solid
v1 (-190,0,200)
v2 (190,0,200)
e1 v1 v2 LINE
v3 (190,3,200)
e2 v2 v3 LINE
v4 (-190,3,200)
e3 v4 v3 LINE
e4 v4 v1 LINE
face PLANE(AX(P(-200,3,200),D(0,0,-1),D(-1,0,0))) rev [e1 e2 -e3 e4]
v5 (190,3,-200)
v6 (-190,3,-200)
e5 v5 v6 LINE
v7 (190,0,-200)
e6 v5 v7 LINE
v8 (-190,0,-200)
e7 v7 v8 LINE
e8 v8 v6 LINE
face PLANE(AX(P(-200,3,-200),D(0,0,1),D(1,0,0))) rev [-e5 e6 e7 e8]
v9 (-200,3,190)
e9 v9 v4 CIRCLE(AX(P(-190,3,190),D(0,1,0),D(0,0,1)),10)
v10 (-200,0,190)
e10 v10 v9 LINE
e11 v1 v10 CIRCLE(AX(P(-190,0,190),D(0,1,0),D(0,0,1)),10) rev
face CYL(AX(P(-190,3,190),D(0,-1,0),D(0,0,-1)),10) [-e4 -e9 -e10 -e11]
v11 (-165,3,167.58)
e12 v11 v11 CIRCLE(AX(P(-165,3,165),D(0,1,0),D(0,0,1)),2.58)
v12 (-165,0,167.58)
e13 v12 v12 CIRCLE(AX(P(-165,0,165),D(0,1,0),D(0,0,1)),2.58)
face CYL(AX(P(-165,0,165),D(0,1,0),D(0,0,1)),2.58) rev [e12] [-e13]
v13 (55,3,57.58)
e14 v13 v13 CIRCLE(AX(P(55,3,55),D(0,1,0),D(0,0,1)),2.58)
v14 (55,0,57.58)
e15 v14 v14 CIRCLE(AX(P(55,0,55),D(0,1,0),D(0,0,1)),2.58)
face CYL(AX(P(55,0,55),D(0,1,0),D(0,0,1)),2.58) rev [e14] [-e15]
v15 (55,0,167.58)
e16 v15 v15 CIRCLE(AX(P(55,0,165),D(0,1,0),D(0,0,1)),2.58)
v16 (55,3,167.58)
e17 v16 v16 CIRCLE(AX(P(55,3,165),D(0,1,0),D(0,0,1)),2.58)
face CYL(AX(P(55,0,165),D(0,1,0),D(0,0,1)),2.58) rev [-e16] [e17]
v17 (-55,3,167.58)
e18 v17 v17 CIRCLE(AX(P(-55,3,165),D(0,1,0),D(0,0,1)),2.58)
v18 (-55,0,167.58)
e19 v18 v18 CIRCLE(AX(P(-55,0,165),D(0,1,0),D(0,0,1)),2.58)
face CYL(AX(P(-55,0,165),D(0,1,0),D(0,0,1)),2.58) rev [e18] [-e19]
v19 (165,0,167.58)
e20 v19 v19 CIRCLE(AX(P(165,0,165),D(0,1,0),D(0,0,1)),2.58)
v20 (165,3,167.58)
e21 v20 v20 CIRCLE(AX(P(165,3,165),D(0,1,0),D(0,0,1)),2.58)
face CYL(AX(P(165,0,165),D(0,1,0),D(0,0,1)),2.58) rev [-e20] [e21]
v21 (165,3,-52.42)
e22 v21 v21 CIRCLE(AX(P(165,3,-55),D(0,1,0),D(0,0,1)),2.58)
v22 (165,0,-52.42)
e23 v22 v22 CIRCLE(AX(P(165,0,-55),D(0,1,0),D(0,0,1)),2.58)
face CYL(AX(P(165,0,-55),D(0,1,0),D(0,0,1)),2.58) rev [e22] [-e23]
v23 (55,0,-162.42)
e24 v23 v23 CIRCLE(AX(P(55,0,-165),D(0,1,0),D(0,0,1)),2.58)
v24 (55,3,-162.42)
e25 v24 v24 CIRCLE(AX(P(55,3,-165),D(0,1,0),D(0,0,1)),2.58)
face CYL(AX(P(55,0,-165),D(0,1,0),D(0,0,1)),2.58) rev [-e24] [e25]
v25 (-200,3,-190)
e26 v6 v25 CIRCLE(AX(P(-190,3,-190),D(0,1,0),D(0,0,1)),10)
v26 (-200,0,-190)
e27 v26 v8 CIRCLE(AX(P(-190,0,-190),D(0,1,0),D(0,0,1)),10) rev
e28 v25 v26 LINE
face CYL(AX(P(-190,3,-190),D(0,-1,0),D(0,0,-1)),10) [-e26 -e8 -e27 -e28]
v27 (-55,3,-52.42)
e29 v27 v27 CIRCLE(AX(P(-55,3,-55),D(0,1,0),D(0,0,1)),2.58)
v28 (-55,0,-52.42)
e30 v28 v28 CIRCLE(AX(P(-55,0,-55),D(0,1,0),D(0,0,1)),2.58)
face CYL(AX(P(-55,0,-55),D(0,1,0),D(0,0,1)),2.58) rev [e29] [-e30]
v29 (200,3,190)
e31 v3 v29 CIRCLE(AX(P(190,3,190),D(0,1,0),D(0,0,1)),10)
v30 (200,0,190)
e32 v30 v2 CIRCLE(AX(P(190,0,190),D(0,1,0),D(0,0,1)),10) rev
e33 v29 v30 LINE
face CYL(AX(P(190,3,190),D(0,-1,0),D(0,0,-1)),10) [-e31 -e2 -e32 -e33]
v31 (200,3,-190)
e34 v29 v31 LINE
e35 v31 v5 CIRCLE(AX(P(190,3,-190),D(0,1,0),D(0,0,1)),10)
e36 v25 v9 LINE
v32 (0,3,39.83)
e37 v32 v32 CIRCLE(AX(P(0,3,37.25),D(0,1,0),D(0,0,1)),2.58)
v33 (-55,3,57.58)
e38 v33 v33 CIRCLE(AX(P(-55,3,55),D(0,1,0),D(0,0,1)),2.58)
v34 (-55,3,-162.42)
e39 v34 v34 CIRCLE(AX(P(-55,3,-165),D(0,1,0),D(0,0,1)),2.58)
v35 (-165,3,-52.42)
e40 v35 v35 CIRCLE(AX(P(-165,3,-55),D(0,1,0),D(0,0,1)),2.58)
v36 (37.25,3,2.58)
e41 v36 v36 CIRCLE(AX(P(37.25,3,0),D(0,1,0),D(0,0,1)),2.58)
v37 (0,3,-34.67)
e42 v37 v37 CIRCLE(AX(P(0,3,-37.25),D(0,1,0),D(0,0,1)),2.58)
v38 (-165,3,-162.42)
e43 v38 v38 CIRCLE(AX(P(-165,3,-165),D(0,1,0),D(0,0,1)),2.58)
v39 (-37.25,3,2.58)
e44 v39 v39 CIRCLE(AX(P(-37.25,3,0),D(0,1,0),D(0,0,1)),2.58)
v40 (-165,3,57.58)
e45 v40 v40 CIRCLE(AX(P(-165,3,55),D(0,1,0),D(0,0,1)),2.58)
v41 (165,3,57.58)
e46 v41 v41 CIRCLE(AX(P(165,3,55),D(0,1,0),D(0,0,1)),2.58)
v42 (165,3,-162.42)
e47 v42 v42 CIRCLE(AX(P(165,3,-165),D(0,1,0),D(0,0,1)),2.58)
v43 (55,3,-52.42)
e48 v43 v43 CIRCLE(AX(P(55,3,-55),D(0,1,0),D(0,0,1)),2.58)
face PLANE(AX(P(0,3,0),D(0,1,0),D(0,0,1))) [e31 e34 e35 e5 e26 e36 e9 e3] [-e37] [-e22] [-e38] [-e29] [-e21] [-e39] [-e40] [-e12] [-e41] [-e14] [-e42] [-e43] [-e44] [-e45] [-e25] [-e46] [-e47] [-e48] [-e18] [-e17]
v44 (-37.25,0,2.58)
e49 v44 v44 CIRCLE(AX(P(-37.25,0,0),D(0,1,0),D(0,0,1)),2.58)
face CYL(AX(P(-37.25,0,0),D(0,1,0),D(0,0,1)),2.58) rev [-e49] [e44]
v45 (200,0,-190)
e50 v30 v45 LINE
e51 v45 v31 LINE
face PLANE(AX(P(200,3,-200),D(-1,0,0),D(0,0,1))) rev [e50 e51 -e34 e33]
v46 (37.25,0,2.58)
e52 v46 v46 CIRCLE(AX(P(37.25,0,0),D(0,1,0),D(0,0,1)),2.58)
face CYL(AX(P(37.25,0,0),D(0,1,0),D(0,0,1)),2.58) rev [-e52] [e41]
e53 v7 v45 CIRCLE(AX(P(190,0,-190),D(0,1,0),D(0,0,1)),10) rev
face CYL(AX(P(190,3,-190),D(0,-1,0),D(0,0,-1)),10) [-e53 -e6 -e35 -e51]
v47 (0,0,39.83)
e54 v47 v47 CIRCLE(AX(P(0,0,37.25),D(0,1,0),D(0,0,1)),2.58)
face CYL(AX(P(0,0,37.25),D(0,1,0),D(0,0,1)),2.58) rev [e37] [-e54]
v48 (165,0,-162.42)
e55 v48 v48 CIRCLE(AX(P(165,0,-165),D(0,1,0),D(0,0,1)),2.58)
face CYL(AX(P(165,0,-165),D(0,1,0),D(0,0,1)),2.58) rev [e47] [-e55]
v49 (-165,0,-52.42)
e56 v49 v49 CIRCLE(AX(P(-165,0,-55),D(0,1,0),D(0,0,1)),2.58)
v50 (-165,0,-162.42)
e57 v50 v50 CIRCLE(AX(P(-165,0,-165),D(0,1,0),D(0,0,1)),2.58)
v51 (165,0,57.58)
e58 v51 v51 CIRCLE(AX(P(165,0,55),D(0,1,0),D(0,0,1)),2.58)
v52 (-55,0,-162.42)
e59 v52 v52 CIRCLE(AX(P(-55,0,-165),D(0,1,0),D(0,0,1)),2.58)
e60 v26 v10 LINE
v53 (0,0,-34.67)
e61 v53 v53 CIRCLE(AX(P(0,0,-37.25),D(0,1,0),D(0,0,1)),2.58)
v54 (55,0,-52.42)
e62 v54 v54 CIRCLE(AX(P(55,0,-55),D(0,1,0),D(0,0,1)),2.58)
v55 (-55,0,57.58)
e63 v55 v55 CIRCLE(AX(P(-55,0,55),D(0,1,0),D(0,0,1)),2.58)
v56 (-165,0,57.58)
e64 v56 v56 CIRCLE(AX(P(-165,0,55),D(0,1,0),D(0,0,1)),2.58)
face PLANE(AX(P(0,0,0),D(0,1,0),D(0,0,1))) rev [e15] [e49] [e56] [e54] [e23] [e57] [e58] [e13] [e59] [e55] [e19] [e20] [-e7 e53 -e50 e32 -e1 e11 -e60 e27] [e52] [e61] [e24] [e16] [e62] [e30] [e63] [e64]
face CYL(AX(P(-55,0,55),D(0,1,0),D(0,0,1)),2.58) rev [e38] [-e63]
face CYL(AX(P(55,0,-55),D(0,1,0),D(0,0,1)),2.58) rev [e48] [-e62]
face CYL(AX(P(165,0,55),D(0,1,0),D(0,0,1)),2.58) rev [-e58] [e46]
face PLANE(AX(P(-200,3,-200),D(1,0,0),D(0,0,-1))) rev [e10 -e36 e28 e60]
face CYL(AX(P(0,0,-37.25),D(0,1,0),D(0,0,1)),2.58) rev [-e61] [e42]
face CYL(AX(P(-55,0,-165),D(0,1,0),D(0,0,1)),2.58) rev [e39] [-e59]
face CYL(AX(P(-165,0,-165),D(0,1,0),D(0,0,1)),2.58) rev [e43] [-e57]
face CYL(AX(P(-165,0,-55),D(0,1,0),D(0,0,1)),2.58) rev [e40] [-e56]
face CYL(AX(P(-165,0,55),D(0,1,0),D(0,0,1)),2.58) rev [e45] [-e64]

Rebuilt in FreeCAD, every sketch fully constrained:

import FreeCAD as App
import Part
import Sketcher


def edges_at(feature, points):
    """Names of the edges that pass closest to the given points."""
    edges = feature.Shape.Edges
    near = lambda p: min(range(len(edges)), key=lambda i: edges[i].distToShape(Part.Vertex(*p))[0])
    return sorted({f"Edge{near(p) + 1}" for p in points})


def add_polygon(sketch, points):
    """Adds a closed chain of lines whose ends are joined by coincident constraints."""
    first, n = sketch.GeometryCount, len(points)
    for a, b in zip(points, points[1:] + points[:1]):
        sketch.addGeometry(Part.LineSegment(App.Vector(*a, 0), App.Vector(*b, 0)), False)
    for i in range(n):
        sketch.addConstraint(Sketcher.Constraint("Coincident", first + i, 2, first + (i + 1) % n, 1))

doc = App.newDocument("Part")
params = doc.addObject("Spreadsheet::Sheet", "Params")
for row, (alias, value) in enumerate([
    ("sketch1_width", "400 mm"),
    ("pad1_length", "3 mm"),
    ("sketch2_diameter", "5.16 mm"),
    ("sketch3_diameter", "5.16 mm"),
    ("fillet_radius", "10 mm"),
], start=1):
    params.set(f"A{row}", alias)
    params.set(f"B{row}", "=" + value)
    params.setAlias(f"B{row}", alias)

body = doc.addObject("PartDesign::Body", "Body")

# Sketch on XZ plane
sketch1 = doc.addObject("Sketcher::SketchObject", "Sketch")
body.addObject(sketch1)
sketch1.AttachmentSupport = (doc.XZ_Plane, [""])
sketch1.MapMode = "FlatFace"
add_polygon(sketch1, [(-200, -200), (-200, 200), (200, 200), (200, -200)])  # lines 0-3
sketch1.addConstraint(Sketcher.Constraint("Vertical", 0))
sketch1.addConstraint(Sketcher.Constraint("Horizontal", 1))
sketch1.addConstraint(Sketcher.Constraint("Vertical", 2))
sketch1.addConstraint(Sketcher.Constraint("Horizontal", 3))
sketch1.addConstraint(Sketcher.Constraint("Symmetric", 0, 2, 2, 2, -1, 1))
sketch1.addConstraint(Sketcher.Constraint("Equal", 3, 0))
sketch1.addConstraint(Sketcher.Constraint("DistanceX", 1, 1, 1, 2, 400.0))
sketch1.setExpression("Constraints[10]", "Params.sketch1_width")
pad1 = doc.addObject("PartDesign::Pad", "Pad")
body.addObject(pad1)
pad1.Profile = sketch1
pad1.setExpression("Length", "Params.pad1_length")
pad1.Reversed = True

# Sketch on XZ plane
sketch2 = doc.addObject("Sketcher::SketchObject", "Sketch001")
body.addObject(sketch2)
sketch2.AttachmentSupport = (doc.XZ_Plane, [""])
sketch2.MapMode = "FlatFace"
sketch2.AttachmentOffset = App.Placement(App.Vector(0, 0, -3), App.Rotation())
sketch2.addGeometry(Part.Circle(App.Vector(-37.2, 0, 0), App.Vector(0, 0, 1), 2.6), False)
sketch2.addGeometry(Part.Circle(App.Vector(0, -37.2, 0), App.Vector(0, 0, 1), 2.6), False)
sketch2.addGeometry(Part.Circle(App.Vector(37.2, 0, 0), App.Vector(0, 0, 1), 2.6), False)
sketch2.addGeometry(Part.Circle(App.Vector(0, 37.2, 0), App.Vector(0, 0, 1), 2.6), False)
sketch2.addConstraint(Sketcher.Constraint("Equal", 0, 1))
sketch2.addConstraint(Sketcher.Constraint("Equal", 1, 2))
sketch2.addConstraint(Sketcher.Constraint("Equal", 2, 3))
sketch2.addConstraint(Sketcher.Constraint("Symmetric", 0, 3, 2, 3, -1, 1))
sketch2.addConstraint(Sketcher.Constraint("Symmetric", 1, 3, 3, 3, -1, 1))
sketch2.addConstraint(Sketcher.Constraint("PointOnObject", 0, 3, -1))
sketch2.addConstraint(Sketcher.Constraint("PointOnObject", 1, 3, -2))
sketch2.addConstraint(Sketcher.Constraint("Diameter", 0, 5.16))
sketch2.addConstraint(Sketcher.Constraint("DistanceX", 0, 3, 2, 3, 74.5))
sketch2.addConstraint(Sketcher.Constraint("DistanceY", 1, 3, 3, 3, 74.5))
sketch2.setExpression("Constraints[7]", "Params.sketch2_diameter")
pocket1 = doc.addObject("PartDesign::Pocket", "Pocket")
body.addObject(pocket1)
pocket1.Profile = sketch2
pocket1.Type = "ThroughAll"
pocket1.Reversed = True

# Sketch on XZ plane
sketch3 = doc.addObject("Sketcher::SketchObject", "Sketch002")
body.addObject(sketch3)
sketch3.AttachmentSupport = (doc.XZ_Plane, [""])
sketch3.MapMode = "FlatFace"
sketch3.AttachmentOffset = App.Placement(App.Vector(0, 0, -3), App.Rotation())
sketch3.addGeometry(Part.Circle(App.Vector(-165, -165, 0), App.Vector(0, 0, 1), 2.6), False)
sketch3.addGeometry(Part.Circle(App.Vector(-55, -165, 0), App.Vector(0, 0, 1), 2.6), False)
sketch3.addGeometry(Part.Circle(App.Vector(55, -165, 0), App.Vector(0, 0, 1), 2.6), False)
sketch3.addGeometry(Part.Circle(App.Vector(165, -165, 0), App.Vector(0, 0, 1), 2.6), False)
sketch3.addGeometry(Part.Circle(App.Vector(-55, -55, 0), App.Vector(0, 0, 1), 2.6), False)
sketch3.addGeometry(Part.Circle(App.Vector(55, -55, 0), App.Vector(0, 0, 1), 2.6), False)
sketch3.addGeometry(Part.Circle(App.Vector(165, -55, 0), App.Vector(0, 0, 1), 2.6), False)
sketch3.addGeometry(Part.Circle(App.Vector(-55, 55, 0), App.Vector(0, 0, 1), 2.6), False)
sketch3.addGeometry(Part.Circle(App.Vector(55, 55, 0), App.Vector(0, 0, 1), 2.6), False)
sketch3.addGeometry(Part.Circle(App.Vector(165, 55, 0), App.Vector(0, 0, 1), 2.6), False)
sketch3.addGeometry(Part.Circle(App.Vector(-55, 165, 0), App.Vector(0, 0, 1), 2.6), False)
sketch3.addGeometry(Part.Circle(App.Vector(55, 165, 0), App.Vector(0, 0, 1), 2.6), False)
sketch3.addGeometry(Part.Circle(App.Vector(165, 165, 0), App.Vector(0, 0, 1), 2.6), False)
sketch3.addGeometry(Part.Circle(App.Vector(-165, -55, 0), App.Vector(0, 0, 1), 2.6), False)
sketch3.addGeometry(Part.Circle(App.Vector(-165, 55, 0), App.Vector(0, 0, 1), 2.6), False)
sketch3.addGeometry(Part.Circle(App.Vector(-165, 165, 0), App.Vector(0, 0, 1), 2.6), False)
sketch3.addConstraint(Sketcher.Constraint("Equal", 0, 1))
sketch3.addConstraint(Sketcher.Constraint("Equal", 1, 2))
sketch3.addConstraint(Sketcher.Constraint("Equal", 2, 3))
sketch3.addConstraint(Sketcher.Constraint("Equal", 3, 4))
sketch3.addConstraint(Sketcher.Constraint("Equal", 4, 5))
sketch3.addConstraint(Sketcher.Constraint("Equal", 5, 6))
sketch3.addConstraint(Sketcher.Constraint("Equal", 6, 7))
sketch3.addConstraint(Sketcher.Constraint("Equal", 7, 8))
sketch3.addConstraint(Sketcher.Constraint("Equal", 8, 9))
sketch3.addConstraint(Sketcher.Constraint("Equal", 9, 10))
sketch3.addConstraint(Sketcher.Constraint("Equal", 10, 11))
sketch3.addConstraint(Sketcher.Constraint("Equal", 11, 12))
sketch3.addConstraint(Sketcher.Constraint("Equal", 12, 13))
sketch3.addConstraint(Sketcher.Constraint("Equal", 13, 14))
sketch3.addConstraint(Sketcher.Constraint("Equal", 14, 15))
sketch3.addConstraint(Sketcher.Constraint("Symmetric", 5, 3, 7, 3, -1, 1))
sketch3.addConstraint(Sketcher.Constraint("Symmetric", 4, 3, 8, 3, -1, 1))
sketch3.addConstraint(Sketcher.Constraint("Symmetric", 2, 3, 10, 3, -1, 1))
sketch3.addConstraint(Sketcher.Constraint("Symmetric", 1, 3, 11, 3, -1, 1))
sketch3.addConstraint(Sketcher.Constraint("Symmetric", 0, 3, 12, 3, -1, 1))
sketch3.addConstraint(Sketcher.Constraint("Symmetric", 9, 3, 13, 3, -1, 1))
sketch3.addConstraint(Sketcher.Constraint("Symmetric", 6, 3, 14, 3, -1, 1))
sketch3.addConstraint(Sketcher.Constraint("Symmetric", 3, 3, 15, 3, -1, 1))
sketch3.addConstraint(Sketcher.Constraint("Symmetric", 1, 3, 2, 3, -2))
sketch3.addConstraint(Sketcher.Constraint("Symmetric", 0, 3, 3, 3, -2))
sketch3.addConstraint(Sketcher.Constraint("Symmetric", 4, 3, 5, 3, -2))
sketch3.addConstraint(Sketcher.Constraint("Symmetric", 6, 3, 13, 3, -2))
sketch3.addConstraint(Sketcher.Constraint("Horizontal", 0, 3, 1, 3))
sketch3.addConstraint(Sketcher.Constraint("Horizontal", 5, 3, 6, 3))
sketch3.addConstraint(Sketcher.Constraint("Vertical", 1, 3, 4, 3))
sketch3.addConstraint(Sketcher.Constraint("Vertical", 3, 3, 6, 3))
sketch3.addConstraint(Sketcher.Constraint("Diameter", 0, 5.16))
sketch3.addConstraint(Sketcher.Constraint("DistanceX", 0, 3, -1, 1, 165.0))
sketch3.addConstraint(Sketcher.Constraint("DistanceY", 0, 3, -1, 1, 165.0))
sketch3.addConstraint(Sketcher.Constraint("DistanceX", 1, 3, -1, 1, 55.0))
sketch3.addConstraint(Sketcher.Constraint("DistanceY", 4, 3, -1, 1, 55.0))
sketch3.setExpression("Constraints[31]", "Params.sketch3_diameter")
pocket2 = doc.addObject("PartDesign::Pocket", "Pocket001")
body.addObject(pocket2)
pocket2.Profile = sketch3
pocket2.Type = "ThroughAll"
pocket2.Reversed = True
doc.recompute()

fillet = doc.addObject("PartDesign::Fillet", "Fillet")
body.addObject(fillet)
fillet.Base = (pocket2, edges_at(pocket2, [
    (200, 1.5, 200),
    (-200, 1.5, 200),
    (-200, 1.5, -200),
    (200, 1.5, -200),
]))
fillet.setExpression("Radius", "Params.fillet_radius")

doc.recompute()
